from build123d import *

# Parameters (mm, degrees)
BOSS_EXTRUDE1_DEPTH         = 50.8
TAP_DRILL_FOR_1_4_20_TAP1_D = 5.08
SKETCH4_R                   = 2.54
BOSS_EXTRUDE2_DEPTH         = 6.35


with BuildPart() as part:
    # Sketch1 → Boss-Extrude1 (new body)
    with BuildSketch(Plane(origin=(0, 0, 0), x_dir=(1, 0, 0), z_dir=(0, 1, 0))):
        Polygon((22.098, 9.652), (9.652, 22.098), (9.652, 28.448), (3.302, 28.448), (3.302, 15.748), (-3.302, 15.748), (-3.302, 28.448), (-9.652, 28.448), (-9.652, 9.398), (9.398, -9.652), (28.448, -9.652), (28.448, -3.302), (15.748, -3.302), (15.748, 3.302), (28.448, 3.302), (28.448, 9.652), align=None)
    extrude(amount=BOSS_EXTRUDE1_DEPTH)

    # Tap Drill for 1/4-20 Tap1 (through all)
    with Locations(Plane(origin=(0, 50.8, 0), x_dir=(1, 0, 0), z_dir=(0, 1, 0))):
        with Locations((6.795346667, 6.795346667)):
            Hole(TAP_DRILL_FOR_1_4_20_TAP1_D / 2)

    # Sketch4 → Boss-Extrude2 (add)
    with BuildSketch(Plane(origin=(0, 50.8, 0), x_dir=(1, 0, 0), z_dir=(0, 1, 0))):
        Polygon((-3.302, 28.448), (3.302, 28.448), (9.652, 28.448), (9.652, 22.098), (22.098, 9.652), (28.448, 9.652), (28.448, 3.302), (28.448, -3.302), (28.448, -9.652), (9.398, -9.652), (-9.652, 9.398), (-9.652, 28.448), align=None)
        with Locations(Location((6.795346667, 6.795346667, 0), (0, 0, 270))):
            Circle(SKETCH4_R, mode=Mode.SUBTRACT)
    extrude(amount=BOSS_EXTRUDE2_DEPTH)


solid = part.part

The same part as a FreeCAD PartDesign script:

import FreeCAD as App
import Part
import Sketcher
Q = App.Units.Quantity


def add_polygon(sketch, points):
    """Adds a closed chain of lines whose ends are joined by coincident constraints."""
    first, n = sketch.GeometryCount, len(points)
    for a, b in zip(points, points[1:] + points[:1]):
        sketch.addGeometry(Part.LineSegment(App.Vector(*a, 0), App.Vector(*b, 0)), False)
    for i in range(n):
        sketch.addConstraint(Sketcher.Constraint("Coincident", first + i, 2, first + (i + 1) % n, 1))

doc = App.newDocument("Part")
body = doc.addObject("PartDesign::Body", "Body")

sketch1 = body.newObject("Sketcher::SketchObject", "Sketch")
sketch1.AttachmentSupport = (doc.getObject("XZ_Plane"), [""])
sketch1.MapMode = "FlatFace"
add_polygon(sketch1, [(22, -10), (10, -22), (10, -28), (3, -28), (3, -16), (-3, -16), (-3, -28), (-10, -28), (-10, -9), (9, 10), (28, 10), (28, 3), (16, 3), (16, -3), (28, -3), (28, -10)])
sketch1.addConstraint([
    Sketcher.Constraint("Vertical", 1),
    Sketcher.Constraint("Horizontal", 2),
    Sketcher.Constraint("Vertical", 3),
    Sketcher.Constraint("Horizontal", 4),
    Sketcher.Constraint("Vertical", 5),
    Sketcher.Constraint("Horizontal", 6),
    Sketcher.Constraint("Vertical", 7),
    Sketcher.Constraint("Horizontal", 9),
    Sketcher.Constraint("Vertical", 10),
    Sketcher.Constraint("Horizontal", 11),
    Sketcher.Constraint("Vertical", 12),
    Sketcher.Constraint("Horizontal", 13),
    Sketcher.Constraint("Vertical", 14),
    Sketcher.Constraint("Horizontal", 15),
    Sketcher.Constraint("Symmetric", 2, 2, 5, 2, -2),
    Sketcher.Constraint("Symmetric", 10, 2, 13, 2, -1),
    Sketcher.Constraint("Parallel", 0, 8),
    Sketcher.Constraint("Equal", 2, 6),
    Sketcher.Constraint("Equal", 6, 15),
    Sketcher.Constraint("Equal", 15, 1),
    Sketcher.Constraint("Equal", 13, 3),
    Sketcher.Constraint("Equal", 9, 7),
    Sketcher.Constraint("Equal", 1, 10),
    Sketcher.Constraint("Equal", 4, 12),
    Sketcher.Constraint("Equal", 10, 14),
    Sketcher.Constraint("DistanceX", 11, 2, 11, 1, Q("0.5 in")),
    Sketcher.Constraint("DistanceY", 3, 2, 8, 2, Q("1 in")),
    Sketcher.Constraint("DistanceY", 0, 2, 10, 2, Q("1 in")),
    Sketcher.Constraint("DistanceX", 4, 2, 4, 1, Q("0.26 in")),
    Sketcher.Constraint("DistanceX", 9, 1, 9, 2, Q("0.75 in")),
])
pad1 = body.newObject("PartDesign::Pad", "Pad")
pad1.Profile = sketch1
pad1.Length = Q("2 in")
pad1.Reversed = True

sketch2 = body.newObject("Sketcher::SketchObject", "Sketch001")
sketch2.AttachmentSupport = (doc.getObject("XZ_Plane"), [""])
sketch2.MapMode = "FlatFace"
sketch2.AttachmentOffset = App.Placement(App.Vector(0, 0, -2 * 25.4), App.Rotation())
sketch2.addGeometry(Part.Circle(App.Vector(6.8, -6.8, 0), App.Vector(0, 0, 1), 2.5), False)
sketch2.addConstraint([
    Sketcher.Constraint("Diameter", 0, Q("0.2 in")),
    Sketcher.Constraint("DistanceX", -1, 1, 0, 3, 6.795347),
    Sketcher.Constraint("DistanceY", 0, 3, -1, 1, 6.795347),
])
doc.recompute()
hole = body.newObject("PartDesign::Hole", "Hole")
hole.Profile = sketch2
hole.ThreadType = "None"
hole.Diameter = Q("0.2 in")
hole.DepthType = "ThroughAll"
hole.Reversed = True

sketch3 = body.newObject("Sketcher::SketchObject", "Sketch002")
sketch3.AttachmentSupport = (doc.getObject("XZ_Plane"), [""])
sketch3.MapMode = "FlatFace"
sketch3.AttachmentOffset = App.Placement(App.Vector(0, 0, -2 * 25.4), App.Rotation())
add_polygon(sketch3, [(9.7, -28.4), (-9.7, -28.4), (-9.7, -9.4), (9.4, 9.7), (28.4, 9.7), (28.4, -9.7), (22.1, -9.7), (9.7, -22.1)])
sketch3.addGeometry(Part.Circle(App.Vector(6.8, -6.8, 0), App.Vector(0, 0, 1), 2.5), False)
sketch3.addConstraint([
    Sketcher.Constraint("Horizontal", 0),
    Sketcher.Constraint("Vertical", 1),
    Sketcher.Constraint("Horizontal", 3),
    Sketcher.Constraint("Vertical", 4),
    Sketcher.Constraint("Horizontal", 5),
    Sketcher.Constraint("Vertical", 7),
    Sketcher.Constraint("Parallel", 2, 6),
    Sketcher.Constraint("Equal", 3, 1),
    Sketcher.Constraint("Equal", 0, 4),
    Sketcher.Constraint("Equal", 5, 7),
    Sketcher.Constraint("Diameter", 8, Q("0.2 in")),
    Sketcher.Constraint("DistanceX", 0, 2, 0, 1, Q("0.76 in")),
    Sketcher.Constraint("DistanceX", 3, 1, 3, 2, Q("0.75 in")),
    Sketcher.Constraint("DistanceX", 5, 2, 5, 1, Q("0.25 in")),
    Sketcher.Constraint("DistanceY", 0, 2, 2, 2, Q("1.5 in")),
    Sketcher.Constraint("DistanceX", 0, 2, -1, 1, Q("0.38 in")),
    Sketcher.Constraint("DistanceY", 0, 2, -1, 1, Q("1.12 in")),
    Sketcher.Constraint("DistanceX", -1, 1, 8, 3, 6.795347),
    Sketcher.Constraint("DistanceY", 8, 3, -1, 1, 6.795347),
])
pad2 = body.newObject("PartDesign::Pad", "Pad001")
pad2.Profile = sketch3
pad2.Length = Q("0.25 in")
pad2.Reversed = True

doc.recompute()
